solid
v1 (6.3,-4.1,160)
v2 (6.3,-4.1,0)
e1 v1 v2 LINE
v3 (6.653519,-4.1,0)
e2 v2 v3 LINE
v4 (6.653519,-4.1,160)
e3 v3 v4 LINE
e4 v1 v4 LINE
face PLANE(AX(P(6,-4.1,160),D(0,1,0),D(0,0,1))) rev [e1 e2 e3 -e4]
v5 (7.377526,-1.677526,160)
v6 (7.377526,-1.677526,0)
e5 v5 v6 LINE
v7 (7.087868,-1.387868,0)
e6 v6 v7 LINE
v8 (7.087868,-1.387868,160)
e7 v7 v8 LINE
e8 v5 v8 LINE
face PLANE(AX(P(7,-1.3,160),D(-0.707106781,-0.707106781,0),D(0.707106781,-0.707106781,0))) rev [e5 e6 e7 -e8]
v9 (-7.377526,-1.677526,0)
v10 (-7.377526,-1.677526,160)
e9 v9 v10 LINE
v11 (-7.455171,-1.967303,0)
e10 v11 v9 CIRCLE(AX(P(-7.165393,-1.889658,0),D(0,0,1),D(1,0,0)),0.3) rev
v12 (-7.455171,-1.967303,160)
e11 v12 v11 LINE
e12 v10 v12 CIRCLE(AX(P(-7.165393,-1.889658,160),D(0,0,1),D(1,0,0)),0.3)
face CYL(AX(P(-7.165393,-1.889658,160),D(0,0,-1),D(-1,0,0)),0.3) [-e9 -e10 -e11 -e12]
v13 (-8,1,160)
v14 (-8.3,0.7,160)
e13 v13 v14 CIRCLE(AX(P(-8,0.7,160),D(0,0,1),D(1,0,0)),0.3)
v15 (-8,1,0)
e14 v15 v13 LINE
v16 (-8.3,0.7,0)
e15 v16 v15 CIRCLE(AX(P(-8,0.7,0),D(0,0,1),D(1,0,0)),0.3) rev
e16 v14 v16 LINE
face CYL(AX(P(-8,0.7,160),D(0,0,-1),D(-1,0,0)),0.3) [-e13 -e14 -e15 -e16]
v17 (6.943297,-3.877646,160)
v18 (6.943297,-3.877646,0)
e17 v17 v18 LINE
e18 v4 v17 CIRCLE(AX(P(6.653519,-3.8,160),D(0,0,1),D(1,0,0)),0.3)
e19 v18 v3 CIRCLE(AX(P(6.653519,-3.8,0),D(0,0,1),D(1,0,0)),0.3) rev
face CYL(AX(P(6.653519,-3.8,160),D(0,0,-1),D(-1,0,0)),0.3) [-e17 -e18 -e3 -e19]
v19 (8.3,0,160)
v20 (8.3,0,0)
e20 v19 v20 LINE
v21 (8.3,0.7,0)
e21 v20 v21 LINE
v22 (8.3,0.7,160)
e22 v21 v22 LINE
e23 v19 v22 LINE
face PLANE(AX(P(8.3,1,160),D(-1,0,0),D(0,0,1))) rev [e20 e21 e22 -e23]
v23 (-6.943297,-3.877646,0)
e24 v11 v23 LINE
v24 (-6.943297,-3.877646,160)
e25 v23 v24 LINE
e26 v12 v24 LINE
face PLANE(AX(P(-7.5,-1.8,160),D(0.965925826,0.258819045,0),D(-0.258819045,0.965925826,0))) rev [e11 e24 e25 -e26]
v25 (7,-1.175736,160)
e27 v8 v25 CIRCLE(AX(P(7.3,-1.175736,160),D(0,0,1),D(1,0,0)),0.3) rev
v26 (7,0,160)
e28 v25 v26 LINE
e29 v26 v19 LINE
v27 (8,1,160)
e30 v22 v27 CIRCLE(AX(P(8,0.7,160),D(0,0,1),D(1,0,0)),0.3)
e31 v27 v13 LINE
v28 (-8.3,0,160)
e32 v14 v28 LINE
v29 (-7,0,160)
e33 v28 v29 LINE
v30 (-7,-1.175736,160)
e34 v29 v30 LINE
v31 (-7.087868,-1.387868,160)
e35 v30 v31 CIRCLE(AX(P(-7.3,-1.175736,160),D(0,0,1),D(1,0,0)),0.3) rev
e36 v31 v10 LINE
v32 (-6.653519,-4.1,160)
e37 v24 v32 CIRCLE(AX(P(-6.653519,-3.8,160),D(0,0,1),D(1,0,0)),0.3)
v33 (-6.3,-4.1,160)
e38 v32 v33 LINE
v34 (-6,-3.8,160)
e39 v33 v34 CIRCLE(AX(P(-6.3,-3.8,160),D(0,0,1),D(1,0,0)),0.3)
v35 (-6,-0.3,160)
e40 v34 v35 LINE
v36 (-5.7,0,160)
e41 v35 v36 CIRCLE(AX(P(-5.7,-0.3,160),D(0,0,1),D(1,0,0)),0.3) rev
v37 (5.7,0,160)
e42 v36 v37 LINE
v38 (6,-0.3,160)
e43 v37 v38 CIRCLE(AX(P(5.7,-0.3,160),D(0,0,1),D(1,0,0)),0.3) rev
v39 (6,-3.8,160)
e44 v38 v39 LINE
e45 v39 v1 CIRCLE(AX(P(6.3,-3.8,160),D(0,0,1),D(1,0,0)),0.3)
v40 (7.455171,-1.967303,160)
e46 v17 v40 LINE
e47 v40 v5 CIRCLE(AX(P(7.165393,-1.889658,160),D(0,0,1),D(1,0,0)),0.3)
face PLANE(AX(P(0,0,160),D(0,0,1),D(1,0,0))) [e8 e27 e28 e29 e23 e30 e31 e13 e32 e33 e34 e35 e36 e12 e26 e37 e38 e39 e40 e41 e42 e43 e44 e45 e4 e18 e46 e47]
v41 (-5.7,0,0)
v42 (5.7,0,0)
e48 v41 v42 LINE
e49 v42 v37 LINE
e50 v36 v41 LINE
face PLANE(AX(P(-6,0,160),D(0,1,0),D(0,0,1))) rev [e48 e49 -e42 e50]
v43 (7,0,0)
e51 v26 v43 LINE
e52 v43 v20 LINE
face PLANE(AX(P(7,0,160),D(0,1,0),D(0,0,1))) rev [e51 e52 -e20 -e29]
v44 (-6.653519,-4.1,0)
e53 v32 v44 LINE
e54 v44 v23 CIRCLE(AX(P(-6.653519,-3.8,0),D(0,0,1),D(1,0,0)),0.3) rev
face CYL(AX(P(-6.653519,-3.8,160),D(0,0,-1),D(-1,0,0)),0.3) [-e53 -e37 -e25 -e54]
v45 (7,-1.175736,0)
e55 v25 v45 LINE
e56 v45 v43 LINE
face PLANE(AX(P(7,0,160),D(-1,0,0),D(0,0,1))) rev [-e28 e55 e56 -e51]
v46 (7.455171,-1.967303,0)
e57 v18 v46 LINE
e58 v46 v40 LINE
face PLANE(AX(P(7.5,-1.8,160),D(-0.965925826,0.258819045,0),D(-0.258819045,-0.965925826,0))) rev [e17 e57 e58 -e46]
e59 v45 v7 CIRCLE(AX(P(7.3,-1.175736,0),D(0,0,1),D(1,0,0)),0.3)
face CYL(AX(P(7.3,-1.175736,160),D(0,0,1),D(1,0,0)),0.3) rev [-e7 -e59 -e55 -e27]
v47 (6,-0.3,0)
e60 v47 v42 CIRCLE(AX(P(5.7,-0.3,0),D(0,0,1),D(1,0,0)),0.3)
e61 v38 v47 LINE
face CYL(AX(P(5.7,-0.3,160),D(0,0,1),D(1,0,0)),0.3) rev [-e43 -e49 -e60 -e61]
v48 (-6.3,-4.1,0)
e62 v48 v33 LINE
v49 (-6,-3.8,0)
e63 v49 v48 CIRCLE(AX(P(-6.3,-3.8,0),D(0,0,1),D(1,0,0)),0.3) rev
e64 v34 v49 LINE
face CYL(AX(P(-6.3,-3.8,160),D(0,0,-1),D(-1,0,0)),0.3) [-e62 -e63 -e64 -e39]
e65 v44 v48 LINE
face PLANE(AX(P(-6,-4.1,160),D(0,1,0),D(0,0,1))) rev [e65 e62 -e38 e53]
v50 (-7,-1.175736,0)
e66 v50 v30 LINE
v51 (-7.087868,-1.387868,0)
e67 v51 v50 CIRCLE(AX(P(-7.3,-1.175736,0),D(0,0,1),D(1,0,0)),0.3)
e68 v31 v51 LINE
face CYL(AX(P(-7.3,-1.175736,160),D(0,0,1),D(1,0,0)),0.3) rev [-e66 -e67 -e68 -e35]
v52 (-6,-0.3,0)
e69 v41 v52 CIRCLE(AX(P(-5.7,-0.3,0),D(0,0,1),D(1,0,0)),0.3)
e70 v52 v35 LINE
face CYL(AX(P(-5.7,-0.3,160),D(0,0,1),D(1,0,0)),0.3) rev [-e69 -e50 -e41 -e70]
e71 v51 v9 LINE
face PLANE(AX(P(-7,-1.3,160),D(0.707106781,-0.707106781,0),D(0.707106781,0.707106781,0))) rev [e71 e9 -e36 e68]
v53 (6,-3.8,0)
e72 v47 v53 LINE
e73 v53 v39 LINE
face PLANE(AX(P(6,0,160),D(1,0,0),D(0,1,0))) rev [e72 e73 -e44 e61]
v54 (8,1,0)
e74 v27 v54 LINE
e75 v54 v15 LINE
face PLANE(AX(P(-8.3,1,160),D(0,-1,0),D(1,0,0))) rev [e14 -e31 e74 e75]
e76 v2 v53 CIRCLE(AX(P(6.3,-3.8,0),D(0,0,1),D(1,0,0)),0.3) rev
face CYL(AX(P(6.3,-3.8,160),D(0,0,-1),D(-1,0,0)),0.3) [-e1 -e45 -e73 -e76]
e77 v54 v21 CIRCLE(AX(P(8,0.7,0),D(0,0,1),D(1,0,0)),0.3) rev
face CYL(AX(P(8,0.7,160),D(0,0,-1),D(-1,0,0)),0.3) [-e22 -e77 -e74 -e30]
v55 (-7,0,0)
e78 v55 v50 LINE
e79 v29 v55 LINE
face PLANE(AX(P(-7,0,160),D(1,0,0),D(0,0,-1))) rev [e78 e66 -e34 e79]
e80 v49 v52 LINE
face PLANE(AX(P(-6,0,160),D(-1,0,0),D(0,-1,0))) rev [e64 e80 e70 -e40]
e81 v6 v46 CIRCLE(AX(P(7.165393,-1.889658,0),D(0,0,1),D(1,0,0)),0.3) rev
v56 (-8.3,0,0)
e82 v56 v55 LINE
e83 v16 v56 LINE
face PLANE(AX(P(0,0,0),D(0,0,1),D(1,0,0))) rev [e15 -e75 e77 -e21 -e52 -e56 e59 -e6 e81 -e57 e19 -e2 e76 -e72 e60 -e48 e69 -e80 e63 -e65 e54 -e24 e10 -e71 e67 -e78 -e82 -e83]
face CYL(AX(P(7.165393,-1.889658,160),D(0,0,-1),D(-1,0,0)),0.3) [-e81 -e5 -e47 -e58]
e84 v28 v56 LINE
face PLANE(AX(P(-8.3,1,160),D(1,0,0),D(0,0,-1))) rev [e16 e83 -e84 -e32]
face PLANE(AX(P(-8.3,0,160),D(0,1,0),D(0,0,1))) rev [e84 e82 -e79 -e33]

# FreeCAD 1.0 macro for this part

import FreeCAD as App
import Part
import Sketcher
Q = App.Units.Quantity


def edges_at(feature, points):
    """Names of the edges that pass closest to the given points."""
    edges = feature.Shape.Edges
    near = lambda p: min(range(len(edges)), key=lambda i: edges[i].distToShape(Part.Vertex(*p))[0])
    return sorted({f"Edge{near(p) + 1}" for p in points})

doc = App.newDocument("Part")
params = doc.addObject("Spreadsheet::Sheet", "Params")
for row, (alias, value) in enumerate([
    ("sketch1_width", "12 mm"),
    ("sketch1_height", "1 mm"),
    ("sketch1_width2", "16.6 mm"),
    ("sketch1_width3", "1.3 mm"),
    ("sketch1_height2", "4.1 mm"),
    ("pad1_length", "160 mm"),
    ("fillet_radius", "0.3 mm"),
], start=1):
    params.set(f"A{row}", alias)
    params.set(f"B{row}", "=" + value)
    params.setAlias(f"B{row}", alias)

body = doc.addObject("PartDesign::Body", "Body")

sketch1 = body.newObject("Sketcher::SketchObject", "Sketch")
sketch1.AttachmentSupport = (doc.getObject("XY_Plane"), [""])
sketch1.MapMode = "FlatFace"
sketch1.addGeometry([
    Part.LineSegment(App.Vector(8.3, 1, 0), App.Vector(-8.3, 1, 0)),
    Part.LineSegment(App.Vector(-8.3, 1, 0), App.Vector(-8.3, 0, 0)),
    Part.LineSegment(App.Vector(-8.3, 0, 0), App.Vector(-7, 0, 0)),
    Part.LineSegment(App.Vector(-7, 0, 0), App.Vector(-7, -1.3, 0)),
    Part.LineSegment(App.Vector(-7, -1.3, 0), App.Vector(-7.5, -1.8, 0)),
    Part.LineSegment(App.Vector(-7.5, -1.8, 0), App.Vector(-6.9, -4.1, 0)),
    Part.LineSegment(App.Vector(-6.9, -4.1, 0), App.Vector(-6, -4.1, 0)),
    Part.LineSegment(App.Vector(-6, -4.1, 0), App.Vector(-6, 0, 0)),
    Part.LineSegment(App.Vector(-6, 0, 0), App.Vector(6, 0, 0)),
    Part.LineSegment(App.Vector(6, 0, 0), App.Vector(6, -4.1, 0)),
    Part.LineSegment(App.Vector(6, -4.1, 0), App.Vector(6.9, -4.1, 0)),
    Part.LineSegment(App.Vector(6.9, -4.1, 0), App.Vector(7.5, -1.8, 0)),
    Part.LineSegment(App.Vector(7.5, -1.8, 0), App.Vector(7, -1.3, 0)),
    Part.LineSegment(App.Vector(7, -1.3, 0), App.Vector(7, 0, 0)),
    Part.LineSegment(App.Vector(7, 0, 0), App.Vector(8.3, 0, 0)),
    Part.LineSegment(App.Vector(8.3, 0, 0), App.Vector(8.3, 1, 0)),
], False)
sketch1.addConstraint([
    Sketcher.Constraint("Coincident", 0, 2, 1, 1),
    Sketcher.Constraint("Coincident", 1, 2, 2, 1),
    Sketcher.Constraint("Coincident", 2, 2, 3, 1),
    Sketcher.Constraint("Coincident", 3, 2, 4, 1),
    Sketcher.Constraint("Coincident", 4, 2, 5, 1),
    Sketcher.Constraint("Coincident", 5, 2, 6, 1),
    Sketcher.Constraint("Coincident", 6, 2, 7, 1),
    Sketcher.Constraint("Coincident", 7, 2, 8, 1),
    Sketcher.Constraint("Coincident", 8, 2, 9, 1),
    Sketcher.Constraint("Coincident", 9, 2, 10, 1),
    Sketcher.Constraint("Coincident", 10, 2, 11, 1),
    Sketcher.Constraint("Coincident", 11, 2, 12, 1),
    Sketcher.Constraint("Coincident", 12, 2, 13, 1),
    Sketcher.Constraint("Coincident", 13, 2, 14, 1),
    Sketcher.Constraint("Coincident", 14, 2, 15, 1),
    Sketcher.Constraint("Coincident", 15, 2, 0, 1),
    Sketcher.Constraint("Horizontal", 0),
    Sketcher.Constraint("Vertical", 1),
    Sketcher.Constraint("Horizontal", 2),
    Sketcher.Constraint("Vertical", 3),
    Sketcher.Constraint("Horizontal", 6),
    Sketcher.Constraint("Vertical", 7),
    Sketcher.Constraint("Horizontal", 8),
    Sketcher.Constraint("Vertical", 9),
    Sketcher.Constraint("Horizontal", 10),
    Sketcher.Constraint("Vertical", 13),
    Sketcher.Constraint("Horizontal", 14),
    Sketcher.Constraint("Vertical", 15),
    Sketcher.Constraint("Symmetric", 7, 2, 8, 2, -1, 1),
    Sketcher.Constraint("Symmetric", 2, 2, 13, 2, -1, 1),
    Sketcher.Constraint("Symmetric", 5, 2, 10, 2, -2),
    Sketcher.Constraint("Symmetric", 4, 2, 11, 2, -2),
    Sketcher.Constraint("Symmetric", 1, 2, 14, 2, -2),
    Sketcher.Constraint("Perpendicular", 4, 12),
    Sketcher.Constraint("Horizontal", 3, 2, 12, 2),
    Sketcher.Constraint("Equal", 14, 3),
    Sketcher.Constraint("DistanceX", 8, 1, 8, 2, Q("12 mm")),
    Sketcher.Constraint("DistanceY", 1, 2, 1, 1, Q("1 mm")),
    Sketcher.Constraint("Angle", 5, Q("-75 deg")),
    Sketcher.Constraint("DistanceX", 0, 2, 0, 1, Q("16.6 mm")),
    Sketcher.Constraint("DistanceX", 2, 1, 2, 2, Q("1.3 mm")),
    Sketcher.Constraint("DistanceY", 7, 1, 7, 2, Q("4.1 mm")),
    Sketcher.Constraint("DistanceX", 4, 2, -1, 1, Q("7.5 mm")),
])
sketch1.setExpression("Constraints[36]", "Params.sketch1_width")
sketch1.setExpression("Constraints[37]", "Params.sketch1_height")
sketch1.setExpression("Constraints[39]", "Params.sketch1_width2")
sketch1.setExpression("Constraints[40]", "Params.sketch1_width3")
sketch1.setExpression("Constraints[41]", "Params.sketch1_height2")
pad1 = body.newObject("PartDesign::Pad", "Pad")
pad1.Profile = sketch1
pad1.setExpression("Length", "Params.pad1_length")
doc.recompute()

fillet = body.newObject("PartDesign::Fillet", "Fillet")
fillet.Base = (pad1, edges_at(pad1, [
    (-8.3, 1, 80),
    (8.3, 1, 80),
    (7, -1.3, 80),
    (7.5, -1.8, 80),
    (6.884, -4.1, 80),
    (6, -4.1, 80),
    (6, 0, 80),
    (-6, 0, 80),
    (-6, -4.1, 80),
    (-6.884, -4.1, 80),
    (-7.5, -1.8, 80),
    (-7, -1.3, 80),
]))
fillet.setExpression("Radius", "Params.fillet_radius")

doc.recompute()
